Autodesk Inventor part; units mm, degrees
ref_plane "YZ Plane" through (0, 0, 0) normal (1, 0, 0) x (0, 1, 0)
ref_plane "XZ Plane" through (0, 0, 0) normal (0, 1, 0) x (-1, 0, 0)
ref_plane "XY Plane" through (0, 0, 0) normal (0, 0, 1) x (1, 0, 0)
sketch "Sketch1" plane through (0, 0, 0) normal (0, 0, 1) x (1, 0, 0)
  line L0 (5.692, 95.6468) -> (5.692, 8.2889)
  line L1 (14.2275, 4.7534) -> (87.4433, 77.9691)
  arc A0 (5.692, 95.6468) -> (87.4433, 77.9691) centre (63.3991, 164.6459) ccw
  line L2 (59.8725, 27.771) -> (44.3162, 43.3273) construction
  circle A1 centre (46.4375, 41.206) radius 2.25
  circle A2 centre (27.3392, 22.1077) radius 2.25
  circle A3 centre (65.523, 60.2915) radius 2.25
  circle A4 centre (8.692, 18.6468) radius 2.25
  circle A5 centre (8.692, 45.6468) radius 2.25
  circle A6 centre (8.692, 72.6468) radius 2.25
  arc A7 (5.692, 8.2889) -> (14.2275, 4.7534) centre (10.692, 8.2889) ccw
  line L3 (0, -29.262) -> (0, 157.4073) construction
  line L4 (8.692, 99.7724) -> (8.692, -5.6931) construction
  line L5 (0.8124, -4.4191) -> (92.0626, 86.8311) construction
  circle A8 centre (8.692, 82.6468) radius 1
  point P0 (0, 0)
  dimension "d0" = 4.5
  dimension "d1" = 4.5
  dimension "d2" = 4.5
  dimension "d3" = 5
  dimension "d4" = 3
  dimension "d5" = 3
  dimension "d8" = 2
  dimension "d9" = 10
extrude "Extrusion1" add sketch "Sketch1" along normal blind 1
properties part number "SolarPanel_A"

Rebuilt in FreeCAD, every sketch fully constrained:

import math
import FreeCAD as App
import Part
import Sketcher
from FreeCAD import Vector
Q = App.Units.Quantity

doc = App.newDocument("Part")
body = doc.addObject("PartDesign::Body", "Body")

# Sketch on XY plane
sketch1 = body.newObject("Sketcher::SketchObject", "Sketch")
sketch1.AttachmentSupport = (doc.getObject("XY_Plane"), [""])
sketch1.MapMode = "FlatFace"
sketch1.addGeometry([
    Part.ArcOfCircle(Part.Circle(Vector(63.4, 164.6, 0), Vector(0, 0, 1), 89.9), math.radians(-130), math.radians(-74)),  # 0
    Part.LineSegment(Vector(5.7, 95.6, 0), Vector(5.7, 8.3, 0)),  # 1
    Part.ArcOfCircle(Part.Circle(Vector(10.7, 8.3, 0), Vector(0, 0, 1), 5), math.radians(180), math.radians(315)),  # 2
    Part.LineSegment(Vector(14.2, 4.8, 0), Vector(87.4, 78, 0)),  # 3
    Part.Circle(Vector(8.7, 18.6, 0), Vector(0, 0, 1), 2.2),  # 4
    Part.Circle(Vector(27.3, 22.1, 0), Vector(0, 0, 1), 2.2),  # 5
    Part.Circle(Vector(8.7, 45.6, 0), Vector(0, 0, 1), 2.2),  # 6
    Part.Circle(Vector(46.4, 41.2, 0), Vector(0, 0, 1), 2.2),  # 7
    Part.Circle(Vector(8.7, 72.6, 0), Vector(0, 0, 1), 2.2),  # 8
    Part.Circle(Vector(8.7, 82.6, 0), Vector(0, 0, 1), 1),  # 9
    Part.Circle(Vector(65.5, 60.3, 0), Vector(0, 0, 1), 2.2),  # 10
], False)
sketch1.addConstraint([
    Sketcher.Constraint("Coincident", 0, 1, 1, 1),
    Sketcher.Constraint("Tangent", 1, 2, 2, 1),
    Sketcher.Constraint("Tangent", 2, 2, 3, 1),
    Sketcher.Constraint("Coincident", 3, 2, 0, 2),
    Sketcher.Constraint("Vertical", 1),
    Sketcher.Constraint("Equal", 4, 5),
    Sketcher.Constraint("Equal", 5, 6),
    Sketcher.Constraint("Equal", 6, 7),
    Sketcher.Constraint("Equal", 7, 8),
    Sketcher.Constraint("Equal", 8, 10),
    Sketcher.Constraint("Vertical", 4, 3, 6, 3),
    Sketcher.Constraint("Vertical", 6, 3, 8, 3),
    Sketcher.Constraint("Vertical", 8, 3, 9, 3),
    Sketcher.Constraint("Diameter", 9, Q("2 mm")),
    Sketcher.Constraint("Radius", 2, Q("5 mm")),
    Sketcher.Constraint("Diameter", 4, Q("4.5 mm")),
    Sketcher.Constraint("DistanceX", 4, 3, 2, 3, Q("2 mm")),
    Sketcher.Constraint("DistanceY", 8, 3, 9, 3, Q("10 mm")),
    Sketcher.Constraint("Angle", 3, Q("45 deg")),
    Sketcher.Constraint("Radius", 0, Q("89.95 mm")),
    Sketcher.Constraint("DistanceY", 4, 3, 6, 3, Q("27 mm")),
    Sketcher.Constraint("DistanceY", 6, 3, 8, 3, Q("27 mm")),
    Sketcher.Constraint("DistanceY", 9, 3, 0, 1, Q("13 mm")),
    Sketcher.Constraint("DistanceY", 1, 2, 1, 1, Q("87.358 mm")),
    Sketcher.Constraint("DistanceX", 5, 3, 0, 3, Q("36.06 mm")),
    Sketcher.Constraint("DistanceY", 7, 3, 0, 3, Q("123.44 mm")),
    Sketcher.Constraint("DistanceX", -1, 1, 0, 3, Q("63.399 mm")),
    Sketcher.Constraint("DistanceY", -1, 1, 0, 3, Q("164.646 mm")),
    Sketcher.Constraint("DistanceX", -1, 1, 2, 3, Q("10.692 mm")),
    Sketcher.Constraint("DistanceX", -1, 1, 10, 3, Q("65.523 mm")),
    Sketcher.Constraint("DistanceY", 4, 3, 5, 3, Q("3.461 mm")),
    Sketcher.Constraint("DistanceX", -1, 1, 7, 3, Q("46.4375 mm")),
    Sketcher.Constraint("DistanceY", -1, 1, 10, 3, Q("60.2915 mm")),
])
pad1 = body.newObject("PartDesign::Pad", "Pad")
pad1.Profile = sketch1
pad1.Length = 1

doc.recompute()
